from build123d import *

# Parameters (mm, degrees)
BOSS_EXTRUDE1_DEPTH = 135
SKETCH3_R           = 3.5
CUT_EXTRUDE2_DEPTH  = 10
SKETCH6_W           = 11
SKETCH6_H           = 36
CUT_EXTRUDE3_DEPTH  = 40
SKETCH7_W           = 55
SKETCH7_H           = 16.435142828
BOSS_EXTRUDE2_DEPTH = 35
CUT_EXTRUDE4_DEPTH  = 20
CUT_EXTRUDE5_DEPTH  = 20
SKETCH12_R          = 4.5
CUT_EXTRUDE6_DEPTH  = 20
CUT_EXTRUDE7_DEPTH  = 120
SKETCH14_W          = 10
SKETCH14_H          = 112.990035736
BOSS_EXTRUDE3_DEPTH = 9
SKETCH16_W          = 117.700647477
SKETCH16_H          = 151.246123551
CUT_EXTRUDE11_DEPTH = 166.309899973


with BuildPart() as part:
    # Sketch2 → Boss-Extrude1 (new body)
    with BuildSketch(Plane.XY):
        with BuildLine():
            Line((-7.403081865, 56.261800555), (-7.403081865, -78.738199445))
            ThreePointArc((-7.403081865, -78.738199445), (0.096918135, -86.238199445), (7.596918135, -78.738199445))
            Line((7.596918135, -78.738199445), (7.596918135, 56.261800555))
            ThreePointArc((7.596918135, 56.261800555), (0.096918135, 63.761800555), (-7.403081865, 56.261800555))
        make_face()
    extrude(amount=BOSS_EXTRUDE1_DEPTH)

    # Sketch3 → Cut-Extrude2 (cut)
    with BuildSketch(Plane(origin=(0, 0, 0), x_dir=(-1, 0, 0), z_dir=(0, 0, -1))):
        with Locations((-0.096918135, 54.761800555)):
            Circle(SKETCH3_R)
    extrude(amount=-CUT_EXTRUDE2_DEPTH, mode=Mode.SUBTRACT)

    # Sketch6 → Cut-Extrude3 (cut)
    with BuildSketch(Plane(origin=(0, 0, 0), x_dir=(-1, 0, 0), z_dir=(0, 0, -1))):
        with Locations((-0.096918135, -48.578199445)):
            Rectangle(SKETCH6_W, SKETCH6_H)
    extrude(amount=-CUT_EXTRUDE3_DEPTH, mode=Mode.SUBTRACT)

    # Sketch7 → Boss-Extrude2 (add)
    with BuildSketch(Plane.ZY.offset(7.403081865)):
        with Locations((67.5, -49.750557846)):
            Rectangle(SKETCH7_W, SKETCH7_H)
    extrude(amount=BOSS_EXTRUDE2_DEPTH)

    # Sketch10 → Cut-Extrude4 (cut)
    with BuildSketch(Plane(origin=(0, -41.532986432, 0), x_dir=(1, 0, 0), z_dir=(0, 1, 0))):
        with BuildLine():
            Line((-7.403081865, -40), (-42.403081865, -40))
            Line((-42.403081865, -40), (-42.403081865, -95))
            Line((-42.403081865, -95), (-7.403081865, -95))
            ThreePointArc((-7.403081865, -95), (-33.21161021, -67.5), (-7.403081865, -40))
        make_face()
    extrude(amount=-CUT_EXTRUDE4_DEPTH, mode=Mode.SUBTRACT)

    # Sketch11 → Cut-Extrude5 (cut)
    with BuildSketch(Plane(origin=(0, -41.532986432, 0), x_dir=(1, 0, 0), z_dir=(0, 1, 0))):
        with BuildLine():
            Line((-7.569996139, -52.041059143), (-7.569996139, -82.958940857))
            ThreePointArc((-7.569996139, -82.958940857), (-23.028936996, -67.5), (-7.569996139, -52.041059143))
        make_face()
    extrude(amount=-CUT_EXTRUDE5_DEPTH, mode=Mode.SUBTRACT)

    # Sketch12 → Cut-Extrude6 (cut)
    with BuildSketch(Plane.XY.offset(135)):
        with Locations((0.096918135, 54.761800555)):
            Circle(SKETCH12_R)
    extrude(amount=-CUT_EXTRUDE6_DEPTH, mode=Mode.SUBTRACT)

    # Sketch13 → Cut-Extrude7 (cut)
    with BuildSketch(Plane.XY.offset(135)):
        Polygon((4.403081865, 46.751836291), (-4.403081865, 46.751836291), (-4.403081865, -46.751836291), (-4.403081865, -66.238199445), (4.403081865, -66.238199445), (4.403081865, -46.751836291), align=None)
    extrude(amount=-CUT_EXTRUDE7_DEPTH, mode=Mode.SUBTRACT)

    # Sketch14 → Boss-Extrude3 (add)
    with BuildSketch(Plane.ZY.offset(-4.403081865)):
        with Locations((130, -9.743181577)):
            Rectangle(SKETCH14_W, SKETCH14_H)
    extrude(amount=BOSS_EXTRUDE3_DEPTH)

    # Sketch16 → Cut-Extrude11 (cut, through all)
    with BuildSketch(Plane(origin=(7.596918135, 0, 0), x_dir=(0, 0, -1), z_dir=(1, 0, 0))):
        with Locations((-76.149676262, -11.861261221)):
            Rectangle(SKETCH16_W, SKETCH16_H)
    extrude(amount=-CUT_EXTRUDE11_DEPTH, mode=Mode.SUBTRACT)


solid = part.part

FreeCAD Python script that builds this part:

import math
import FreeCAD as App
import Part
import Sketcher

doc = App.newDocument("Part")
body = doc.addObject("PartDesign::Body", "Body")

# Sketch on XY plane
sketch1 = body.newObject("Sketcher::SketchObject", "Sketch")
sketch1.AttachmentSupport = (doc.getObject("XY_Plane"), [""])
sketch1.MapMode = "FlatFace"
sketch1.addGeometry(Part.LineSegment(App.Vector(-7, 56, 0), App.Vector(-7, -79, 0)), False)
sketch1.addGeometry(Part.ArcOfCircle(Part.Circle(App.Vector(0, -79, 0), App.Vector(0, 0, 1), 8), math.radians(180), math.radians(360)), False)
sketch1.addGeometry(Part.LineSegment(App.Vector(8, -79, 0), App.Vector(8, 56, 0)), False)
sketch1.addGeometry(Part.ArcOfCircle(Part.Circle(App.Vector(0, 56, 0), App.Vector(0, 0, 1), 8), math.radians(0), math.radians(180)), False)
sketch1.addConstraint(Sketcher.Constraint("Tangent", 0, 2, 1, 1))
sketch1.addConstraint(Sketcher.Constraint("Tangent", 1, 2, 2, 1))
sketch1.addConstraint(Sketcher.Constraint("Tangent", 2, 2, 3, 1))
sketch1.addConstraint(Sketcher.Constraint("Tangent", 3, 2, 0, 1))
sketch1.addConstraint(Sketcher.Constraint("Vertical", 0))
sketch1.addConstraint(Sketcher.Constraint("Vertical", 2))
sketch1.addConstraint(Sketcher.Constraint("Radius", 1, 7.5))
sketch1.addConstraint(Sketcher.Constraint("DistanceY", 0, 2, 0, 1, 135.0))
sketch1.addConstraint(Sketcher.Constraint("DistanceY", 1, 3, -1, 1, 78.738199))
sketch1.addConstraint(Sketcher.Constraint("DistanceX", -1, 1, 1, 3, 0.096918))
pad1 = body.newObject("PartDesign::Pad", "Pad")
pad1.Profile = sketch1
pad1.Length = 135

# Sketch on XY plane
sketch2 = body.newObject("Sketcher::SketchObject", "Sketch001")
sketch2.AttachmentSupport = (doc.getObject("XY_Plane"), [""])
sketch2.MapMode = "FlatFace"
sketch2.addGeometry(Part.Circle(App.Vector(0.1, 54.8, 0), App.Vector(0, 0, 1), 3.5), False)
sketch2.addConstraint(Sketcher.Constraint("Diameter", 0, 7.0))
sketch2.addConstraint(Sketcher.Constraint("DistanceY", -1, 1, 0, 3, 54.761801))
sketch2.addConstraint(Sketcher.Constraint("DistanceX", -1, 1, 0, 3, 0.096918))
pocket1 = body.newObject("PartDesign::Pocket", "Pocket")
pocket1.Profile = sketch2
pocket1.Length = 10
pocket1.Reversed = True

# Sketch on XY plane
sketch3 = body.newObject("Sketcher::SketchObject", "Sketch002")
sketch3.AttachmentSupport = (doc.getObject("XY_Plane"), [""])
sketch3.MapMode = "FlatFace"
sketch3.addGeometry(Part.LineSegment(App.Vector(6, -31, 0), App.Vector(6, -67, 0)), False)
sketch3.addGeometry(Part.LineSegment(App.Vector(6, -67, 0), App.Vector(-5, -67, 0)), False)
sketch3.addGeometry(Part.LineSegment(App.Vector(-5, -67, 0), App.Vector(-5, -31, 0)), False)
sketch3.addGeometry(Part.LineSegment(App.Vector(-5, -31, 0), App.Vector(6, -31, 0)), False)
sketch3.addConstraint(Sketcher.Constraint("Coincident", 0, 2, 1, 1))
sketch3.addConstraint(Sketcher.Constraint("Coincident", 1, 2, 2, 1))
sketch3.addConstraint(Sketcher.Constraint("Coincident", 2, 2, 3, 1))
sketch3.addConstraint(Sketcher.Constraint("Coincident", 3, 2, 0, 1))
sketch3.addConstraint(Sketcher.Constraint("Vertical", 0))
sketch3.addConstraint(Sketcher.Constraint("Horizontal", 1))
sketch3.addConstraint(Sketcher.Constraint("Vertical", 2))
sketch3.addConstraint(Sketcher.Constraint("Horizontal", 3))
sketch3.addConstraint(Sketcher.Constraint("DistanceX", 1, 2, 1, 1, 11.0))
sketch3.addConstraint(Sketcher.Constraint("DistanceY", 0, 2, 0, 1, 36.0))
sketch3.addConstraint(Sketcher.Constraint("DistanceY", 0, 2, -1, 1, 66.578199))
sketch3.addConstraint(Sketcher.Constraint("DistanceX", -1, 1, 0, 2, 5.596918))
pocket2 = body.newObject("PartDesign::Pocket", "Pocket001")
pocket2.Profile = sketch3
pocket2.Length = 40
pocket2.Reversed = True

# Sketch on YZ plane
sketch4 = body.newObject("Sketcher::SketchObject", "Sketch003")
sketch4.AttachmentSupport = (doc.getObject("YZ_Plane"), [""])
sketch4.MapMode = "FlatFace"
sketch4.AttachmentOffset = App.Placement(App.Vector(0, 0, -7.403082), App.Rotation())
sketch4.addGeometry(Part.LineSegment(App.Vector(-42, 40, 0), App.Vector(-58, 40, 0)), False)
sketch4.addGeometry(Part.LineSegment(App.Vector(-58, 40, 0), App.Vector(-58, 95, 0)), False)
sketch4.addGeometry(Part.LineSegment(App.Vector(-58, 95, 0), App.Vector(-42, 95, 0)), False)
sketch4.addGeometry(Part.LineSegment(App.Vector(-42, 95, 0), App.Vector(-42, 40, 0)), False)
sketch4.addConstraint(Sketcher.Constraint("Coincident", 0, 2, 1, 1))
sketch4.addConstraint(Sketcher.Constraint("Coincident", 1, 2, 2, 1))
sketch4.addConstraint(Sketcher.Constraint("Coincident", 2, 2, 3, 1))
sketch4.addConstraint(Sketcher.Constraint("Coincident", 3, 2, 0, 1))
sketch4.addConstraint(Sketcher.Constraint("Horizontal", 0))
sketch4.addConstraint(Sketcher.Constraint("Vertical", 1))
sketch4.addConstraint(Sketcher.Constraint("Horizontal", 2))
sketch4.addConstraint(Sketcher.Constraint("Vertical", 3))
sketch4.addConstraint(Sketcher.Constraint("DistanceY", 1, 1, 1, 2, 55.0))
sketch4.addConstraint(Sketcher.Constraint("DistanceY", -1, 1, 0, 2, 40.0))
sketch4.addConstraint(Sketcher.Constraint("DistanceX", 0, 2, 0, 1, 16.435143))
sketch4.addConstraint(Sketcher.Constraint("DistanceX", 0, 2, -1, 1, 57.968129))
pad2 = body.newObject("PartDesign::Pad", "Pad001")
pad2.Profile = sketch4
pad2.Length = 35
pad2.Reversed = True

# Sketch on XZ plane
sketch5 = body.newObject("Sketcher::SketchObject", "Sketch004")
sketch5.AttachmentSupport = (doc.getObject("XZ_Plane"), [""])
sketch5.MapMode = "FlatFace"
sketch5.AttachmentOffset = App.Placement(App.Vector(0, 0, 41.532986), App.Rotation())
sketch5.addGeometry(Part.LineSegment(App.Vector(-7, 40, 0), App.Vector(-42, 40, 0)), False)
sketch5.addGeometry(Part.LineSegment(App.Vector(-42, 40, 0), App.Vector(-42, 95, 0)), False)
sketch5.addGeometry(Part.LineSegment(App.Vector(-42, 95, 0), App.Vector(-7, 95, 0)), False)
sketch5.addGeometry(Part.ArcOfCircle(Part.Circle(App.Vector(-6, 68, 0), App.Vector(0, 0, 1), 28), math.radians(94), math.radians(266)), False)
sketch5.addConstraint(Sketcher.Constraint("Coincident", 0, 2, 1, 1))
sketch5.addConstraint(Sketcher.Constraint("Coincident", 1, 2, 2, 1))
sketch5.addConstraint(Sketcher.Constraint("Coincident", 2, 2, 3, 1))
sketch5.addConstraint(Sketcher.Constraint("Coincident", 3, 2, 0, 1))
sketch5.addConstraint(Sketcher.Constraint("Horizontal", 0))
sketch5.addConstraint(Sketcher.Constraint("Vertical", 1))
sketch5.addConstraint(Sketcher.Constraint("Horizontal", 2))
sketch5.addConstraint(Sketcher.Constraint("Vertical", 2, 2, 3, 2))
sketch5.addConstraint(Sketcher.Constraint("DistanceX", 0, 2, 0, 1, 35.0))
sketch5.addConstraint(Sketcher.Constraint("DistanceY", 1, 1, 1, 2, 55.0))
sketch5.addConstraint(Sketcher.Constraint("DistanceY", -1, 1, 0, 2, 40.0))
sketch5.addConstraint(Sketcher.Constraint("Radius", 3, 27.555429))
sketch5.addConstraint(Sketcher.Constraint("DistanceX", 3, 3, -1, 1, 5.656181))
pocket3 = body.newObject("PartDesign::Pocket", "Pocket002")
pocket3.Profile = sketch5
pocket3.Length = 20
pocket3.Reversed = True

# Sketch on XZ plane
sketch6 = body.newObject("Sketcher::SketchObject", "Sketch005")
sketch6.AttachmentSupport = (doc.getObject("XZ_Plane"), [""])
sketch6.MapMode = "FlatFace"
sketch6.AttachmentOffset = App.Placement(App.Vector(0, 0, 41.532986), App.Rotation())
sketch6.addGeometry(Part.LineSegment(App.Vector(-8, 83, 0), App.Vector(-8, 52, 0)), False)
sketch6.addGeometry(Part.ArcOfCircle(Part.Circle(App.Vector(-8, 68, 0), App.Vector(0, 0, 1), 15), math.radians(90), math.radians(270)), False)
sketch6.addConstraint(Sketcher.Constraint("Coincident", 0, 1, 1, 1))
sketch6.addConstraint(Sketcher.Constraint("Coincident", 1, 2, 0, 2))
sketch6.addConstraint(Sketcher.Constraint("Vertical", 0))
sketch6.addConstraint(Sketcher.Constraint("Vertical", 1, 3, 0, 1))
sketch6.addConstraint(Sketcher.Constraint("DistanceY", -1, 1, 1, 3, 67.5))
sketch6.addConstraint(Sketcher.Constraint("Radius", 1, 15.458941))
sketch6.addConstraint(Sketcher.Constraint("DistanceX", 1, 3, -1, 1, 7.569996))
pocket4 = body.newObject("PartDesign::Pocket", "Pocket003")
pocket4.Profile = sketch6
pocket4.Length = 20
pocket4.Reversed = True

# Sketch on XY plane
sketch7 = body.newObject("Sketcher::SketchObject", "Sketch006")
sketch7.AttachmentSupport = (doc.getObject("XY_Plane"), [""])
sketch7.MapMode = "FlatFace"
sketch7.AttachmentOffset = App.Placement(App.Vector(0, 0, 135), App.Rotation())
sketch7.addGeometry(Part.Circle(App.Vector(0.1, 54.8, 0), App.Vector(0, 0, 1), 4.5), False)
sketch7.addConstraint(Sketcher.Constraint("Diameter", 0, 9.0))
sketch7.addConstraint(Sketcher.Constraint("DistanceY", -1, 1, 0, 3, 54.761801))
sketch7.addConstraint(Sketcher.Constraint("DistanceX", -1, 1, 0, 3, 0.096918))
pocket5 = body.newObject("PartDesign::Pocket", "Pocket004")
pocket5.Profile = sketch7
pocket5.Length = 20

# Sketch on XY plane
sketch8 = body.newObject("Sketcher::SketchObject", "Sketch007")
sketch8.AttachmentSupport = (doc.getObject("XY_Plane"), [""])
sketch8.MapMode = "FlatFace"
sketch8.AttachmentOffset = App.Placement(App.Vector(0, 0, 135), App.Rotation())
sketch8.addGeometry(Part.LineSegment(App.Vector(4, 47, 0), App.Vector(-4, 47, 0)), False)
sketch8.addGeometry(Part.LineSegment(App.Vector(-4, 47, 0), App.Vector(-4, -66, 0)), False)
sketch8.addGeometry(Part.LineSegment(App.Vector(-4, -66, 0), App.Vector(4, -66, 0)), False)
sketch8.addGeometry(Part.LineSegment(App.Vector(4, -66, 0), App.Vector(4, 47, 0)), False)
sketch8.addConstraint(Sketcher.Constraint("Coincident", 0, 2, 1, 1))
sketch8.addConstraint(Sketcher.Constraint("Coincident", 1, 2, 2, 1))
sketch8.addConstraint(Sketcher.Constraint("Coincident", 2, 2, 3, 1))
sketch8.addConstraint(Sketcher.Constraint("Coincident", 3, 2, 0, 1))
sketch8.addConstraint(Sketcher.Constraint("Horizontal", 0))
sketch8.addConstraint(Sketcher.Constraint("Vertical", 1))
sketch8.addConstraint(Sketcher.Constraint("Horizontal", 2))
sketch8.addConstraint(Sketcher.Constraint("Vertical", 3))
sketch8.addConstraint(Sketcher.Constraint("DistanceY", 1, 2, -1, 1, 66.238199))
sketch8.addConstraint(Sketcher.Constraint("DistanceX", 0, 2, 0, 1, 8.806164))
sketch8.addConstraint(Sketcher.Constraint("DistanceY", 1, 2, 1, 1, 112.990036))
sketch8.addConstraint(Sketcher.Constraint("DistanceX", 0, 2, -1, 1, 4.403082))
pocket6 = body.newObject("PartDesign::Pocket", "Pocket005")
pocket6.Profile = sketch8
pocket6.Length = 120

# Sketch on YZ plane
sketch9 = body.newObject("Sketcher::SketchObject", "Sketch008")
sketch9.AttachmentSupport = (doc.getObject("YZ_Plane"), [""])
sketch9.MapMode = "FlatFace"
sketch9.AttachmentOffset = App.Placement(App.Vector(0, 0, 4.403082), App.Rotation())
sketch9.addGeometry(Part.LineSegment(App.Vector(47, 125, 0), App.Vector(-66, 125, 0)), False)
sketch9.addGeometry(Part.LineSegment(App.Vector(-66, 125, 0), App.Vector(-66, 135, 0)), False)
sketch9.addGeometry(Part.LineSegment(App.Vector(-66, 135, 0), App.Vector(47, 135, 0)), False)
sketch9.addGeometry(Part.LineSegment(App.Vector(47, 135, 0), App.Vector(47, 125, 0)), False)
sketch9.addConstraint(Sketcher.Constraint("Coincident", 0, 2, 1, 1))
sketch9.addConstraint(Sketcher.Constraint("Coincident", 1, 2, 2, 1))
sketch9.addConstraint(Sketcher.Constraint("Coincident", 2, 2, 3, 1))
sketch9.addConstraint(Sketcher.Constraint("Coincident", 3, 2, 0, 1))
sketch9.addConstraint(Sketcher.Constraint("Horizontal", 0))
sketch9.addConstraint(Sketcher.Constraint("Vertical", 1))
sketch9.addConstraint(Sketcher.Constraint("Horizontal", 2))
sketch9.addConstraint(Sketcher.Constraint("Vertical", 3))
sketch9.addConstraint(Sketcher.Constraint("DistanceY", 1, 1, 1, 2, 10.0))
sketch9.addConstraint(Sketcher.Constraint("DistanceY", -1, 1, 0, 2, 125.0))
sketch9.addConstraint(Sketcher.Constraint("DistanceX", 0, 2, -1, 1, 66.238199))
sketch9.addConstraint(Sketcher.Constraint("DistanceX", 0, 2, 0, 1, 112.990036))
pad3 = body.newObject("PartDesign::Pad", "Pad002")
pad3.Profile = sketch9
pad3.Length = 9
pad3.Reversed = True

# Sketch on YZ plane
sketch10 = body.newObject("Sketcher::SketchObject", "Sketch009")
sketch10.AttachmentSupport = (doc.getObject("YZ_Plane"), [""])
sketch10.MapMode = "FlatFace"
sketch10.AttachmentOffset = App.Placement(App.Vector(0, 0, 7.596918), App.Rotation())
sketch10.addGeometry(Part.LineSegment(App.Vector(64, 135, 0), App.Vector(-87, 135, 0)), False)
sketch10.addGeometry(Part.LineSegment(App.Vector(-87, 135, 0), App.Vector(-87, 17, 0)), False)
sketch10.addGeometry(Part.LineSegment(App.Vector(-87, 17, 0), App.Vector(64, 17, 0)), False)
sketch10.addGeometry(Part.LineSegment(App.Vector(64, 17, 0), App.Vector(64, 135, 0)), False)
sketch10.addConstraint(Sketcher.Constraint("Coincident", 0, 2, 1, 1))
sketch10.addConstraint(Sketcher.Constraint("Coincident", 1, 2, 2, 1))
sketch10.addConstraint(Sketcher.Constraint("Coincident", 2, 2, 3, 1))
sketch10.addConstraint(Sketcher.Constraint("Coincident", 3, 2, 0, 1))
sketch10.addConstraint(Sketcher.Constraint("Horizontal", 0))
sketch10.addConstraint(Sketcher.Constraint("Vertical", 1))
sketch10.addConstraint(Sketcher.Constraint("Horizontal", 2))
sketch10.addConstraint(Sketcher.Constraint("Vertical", 3))
sketch10.addConstraint(Sketcher.Constraint("DistanceY", -1, 1, 0, 2, 135.0))
sketch10.addConstraint(Sketcher.Constraint("DistanceX", -1, 1, 2, 2, 63.761801))
sketch10.addConstraint(Sketcher.Constraint("DistanceX", 0, 2, 0, 1, 151.246124))
sketch10.addConstraint(Sketcher.Constraint("DistanceY", 1, 2, 1, 1, 117.700647))
pocket7 = body.newObject("PartDesign::Pocket", "Pocket006")
pocket7.Profile = sketch10
pocket7.Type = "ThroughAll"

doc.recompute()
